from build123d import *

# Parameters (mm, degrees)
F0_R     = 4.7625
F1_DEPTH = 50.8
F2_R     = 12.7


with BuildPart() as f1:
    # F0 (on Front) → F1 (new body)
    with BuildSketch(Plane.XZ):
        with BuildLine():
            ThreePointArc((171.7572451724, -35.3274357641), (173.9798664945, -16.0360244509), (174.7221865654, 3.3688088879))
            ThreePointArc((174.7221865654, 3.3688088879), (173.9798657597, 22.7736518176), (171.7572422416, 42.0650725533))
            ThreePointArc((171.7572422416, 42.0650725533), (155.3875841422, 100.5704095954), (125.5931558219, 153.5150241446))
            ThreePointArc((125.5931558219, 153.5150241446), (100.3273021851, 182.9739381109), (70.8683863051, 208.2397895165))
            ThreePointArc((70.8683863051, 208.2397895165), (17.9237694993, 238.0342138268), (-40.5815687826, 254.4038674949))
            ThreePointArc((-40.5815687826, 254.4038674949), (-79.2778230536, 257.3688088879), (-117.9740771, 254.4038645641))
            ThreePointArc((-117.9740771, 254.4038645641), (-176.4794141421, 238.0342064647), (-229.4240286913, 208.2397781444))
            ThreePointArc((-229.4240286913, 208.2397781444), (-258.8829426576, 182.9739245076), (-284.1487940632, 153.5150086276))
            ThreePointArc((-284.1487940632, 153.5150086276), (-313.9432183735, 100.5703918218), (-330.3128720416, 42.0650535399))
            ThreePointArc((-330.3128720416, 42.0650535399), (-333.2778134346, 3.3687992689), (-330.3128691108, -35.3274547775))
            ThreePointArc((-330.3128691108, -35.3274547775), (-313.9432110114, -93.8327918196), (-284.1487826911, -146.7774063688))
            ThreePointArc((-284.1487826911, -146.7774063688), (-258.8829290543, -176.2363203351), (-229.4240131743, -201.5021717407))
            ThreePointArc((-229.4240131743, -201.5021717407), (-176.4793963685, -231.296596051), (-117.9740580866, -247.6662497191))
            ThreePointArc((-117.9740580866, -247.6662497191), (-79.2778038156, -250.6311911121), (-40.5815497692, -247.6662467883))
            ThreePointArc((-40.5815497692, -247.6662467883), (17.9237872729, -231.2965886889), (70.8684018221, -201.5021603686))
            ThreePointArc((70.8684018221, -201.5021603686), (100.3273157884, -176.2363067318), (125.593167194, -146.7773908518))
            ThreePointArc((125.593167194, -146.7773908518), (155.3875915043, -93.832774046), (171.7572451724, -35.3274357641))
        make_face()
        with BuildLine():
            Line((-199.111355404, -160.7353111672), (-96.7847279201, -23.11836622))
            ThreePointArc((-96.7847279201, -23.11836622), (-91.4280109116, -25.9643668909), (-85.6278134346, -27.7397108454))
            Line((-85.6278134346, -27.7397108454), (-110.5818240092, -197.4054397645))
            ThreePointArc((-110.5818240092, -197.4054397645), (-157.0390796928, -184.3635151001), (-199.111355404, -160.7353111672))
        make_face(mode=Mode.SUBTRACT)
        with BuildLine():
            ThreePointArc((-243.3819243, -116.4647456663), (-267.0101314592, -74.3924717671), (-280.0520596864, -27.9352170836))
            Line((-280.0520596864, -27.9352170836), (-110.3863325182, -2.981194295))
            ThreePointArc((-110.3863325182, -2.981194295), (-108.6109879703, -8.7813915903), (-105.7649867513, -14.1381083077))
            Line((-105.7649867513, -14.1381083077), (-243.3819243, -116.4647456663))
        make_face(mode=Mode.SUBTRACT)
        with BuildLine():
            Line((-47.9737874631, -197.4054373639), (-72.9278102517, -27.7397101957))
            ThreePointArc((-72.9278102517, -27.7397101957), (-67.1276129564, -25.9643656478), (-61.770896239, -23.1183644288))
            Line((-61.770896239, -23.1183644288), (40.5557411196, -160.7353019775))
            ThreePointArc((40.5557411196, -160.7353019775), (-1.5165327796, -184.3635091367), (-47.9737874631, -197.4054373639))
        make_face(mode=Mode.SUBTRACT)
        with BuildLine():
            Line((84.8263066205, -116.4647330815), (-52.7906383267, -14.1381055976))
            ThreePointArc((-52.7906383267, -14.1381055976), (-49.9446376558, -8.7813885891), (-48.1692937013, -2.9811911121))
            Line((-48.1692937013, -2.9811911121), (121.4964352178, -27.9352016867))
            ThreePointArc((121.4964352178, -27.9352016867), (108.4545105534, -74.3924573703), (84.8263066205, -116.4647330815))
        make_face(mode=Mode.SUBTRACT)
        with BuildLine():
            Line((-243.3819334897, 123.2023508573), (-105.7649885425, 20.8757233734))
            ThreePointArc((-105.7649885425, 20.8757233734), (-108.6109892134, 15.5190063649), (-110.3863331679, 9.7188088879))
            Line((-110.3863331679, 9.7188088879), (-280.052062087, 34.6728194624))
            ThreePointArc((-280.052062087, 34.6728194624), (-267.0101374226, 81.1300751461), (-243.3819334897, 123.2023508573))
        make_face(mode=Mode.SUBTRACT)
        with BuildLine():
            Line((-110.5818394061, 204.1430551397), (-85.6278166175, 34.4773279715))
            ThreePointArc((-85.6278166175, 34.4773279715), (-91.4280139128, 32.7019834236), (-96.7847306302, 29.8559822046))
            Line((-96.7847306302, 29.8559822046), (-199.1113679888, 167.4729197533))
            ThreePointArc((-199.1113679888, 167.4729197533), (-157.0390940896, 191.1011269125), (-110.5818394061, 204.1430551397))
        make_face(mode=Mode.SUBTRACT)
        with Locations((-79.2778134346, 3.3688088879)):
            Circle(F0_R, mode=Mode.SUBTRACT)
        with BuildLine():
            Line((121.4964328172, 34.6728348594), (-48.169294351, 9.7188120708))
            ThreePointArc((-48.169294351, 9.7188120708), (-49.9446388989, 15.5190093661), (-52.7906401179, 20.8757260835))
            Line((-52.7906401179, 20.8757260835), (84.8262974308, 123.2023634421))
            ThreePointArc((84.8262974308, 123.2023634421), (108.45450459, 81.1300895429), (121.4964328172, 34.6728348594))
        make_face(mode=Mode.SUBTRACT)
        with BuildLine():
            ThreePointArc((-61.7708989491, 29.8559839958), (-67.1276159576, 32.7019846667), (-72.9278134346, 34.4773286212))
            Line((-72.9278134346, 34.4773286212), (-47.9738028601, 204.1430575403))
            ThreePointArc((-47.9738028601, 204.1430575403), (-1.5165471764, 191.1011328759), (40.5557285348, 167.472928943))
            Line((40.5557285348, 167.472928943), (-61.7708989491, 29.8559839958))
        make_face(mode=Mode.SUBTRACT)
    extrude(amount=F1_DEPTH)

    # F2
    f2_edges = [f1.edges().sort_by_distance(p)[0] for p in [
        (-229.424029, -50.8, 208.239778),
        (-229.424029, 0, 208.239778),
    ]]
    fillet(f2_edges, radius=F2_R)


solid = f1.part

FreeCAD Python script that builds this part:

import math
import FreeCAD as App
import Part
import Sketcher
from FreeCAD import Vector
Q = App.Units.Quantity


def edges_at(feature, points):
    """Names of the edges that pass closest to the given points."""
    edges = feature.Shape.Edges
    near = lambda p: min(range(len(edges)), key=lambda i: edges[i].distToShape(Part.Vertex(*p))[0])
    return sorted({f"Edge{near(p) + 1}" for p in points})

doc = App.newDocument("Part")
body = doc.addObject("PartDesign::Body", "Body")

sketch1 = body.newObject("Sketcher::SketchObject", "Sketch")
sketch1.AttachmentSupport = (doc.getObject("XZ_Plane"), [""])
sketch1.MapMode = "FlatFace"
sketch1.addGeometry([
    Part.ArcOfCircle(Part.Circle(Vector(-79.277813, 3.368809, 0), Vector(0, 0, 1), 254), math.radians(-8.762988), math.radians(0)),
    Part.ArcOfCircle(Part.Circle(Vector(-79.277813, 3.368809, 0), Vector(0, 0, 1), 254), math.radians(0), math.radians(8.762992)),
    Part.ArcOfCircle(Part.Circle(Vector(-79.277813, 3.368809, 0), Vector(0, 0, 1), 254), math.radians(8.762992), math.radians(36.237012)),
    Part.ArcOfCircle(Part.Circle(Vector(-79.277813, 3.368809, 0), Vector(0, 0, 1), 254), math.radians(36.237012), math.radians(53.762992)),
    Part.ArcOfCircle(Part.Circle(Vector(-79.277813, 3.368809, 0), Vector(0, 0, 1), 254), math.radians(53.762992), math.radians(98.762992)),
    Part.ArcOfCircle(Part.Circle(Vector(-79.277813, 3.368809, 0), Vector(0, 0, 1), 254), math.radians(98.762992), math.radians(126.237012)),
    Part.ArcOfCircle(Part.Circle(Vector(-79.277813, 3.368809, 0), Vector(0, 0, 1), 254), math.radians(126.237012), math.radians(143.762992)),
    Part.ArcOfCircle(Part.Circle(Vector(-79.277813, 3.368809, 0), Vector(0, 0, 1), 254), math.radians(143.762992), math.radians(188.762992)),
    Part.ArcOfCircle(Part.Circle(Vector(-79.277813, 3.368809, 0), Vector(0, 0, 1), 254), math.radians(-171.237008), math.radians(-143.762988)),
    Part.ArcOfCircle(Part.Circle(Vector(-79.277813, 3.368809, 0), Vector(0, 0, 1), 254), math.radians(-143.762988), math.radians(-126.237008)),
    Part.ArcOfCircle(Part.Circle(Vector(-79.277813, 3.368809, 0), Vector(0, 0, 1), 254), math.radians(-126.237008), math.radians(-81.237008)),
    Part.ArcOfCircle(Part.Circle(Vector(-79.277813, 3.368809, 0), Vector(0, 0, 1), 254), math.radians(-81.237008), math.radians(-53.762988)),
    Part.ArcOfCircle(Part.Circle(Vector(-79.277813, 3.368809, 0), Vector(0, 0, 1), 254), math.radians(-53.762988), math.radians(-36.237008)),
    Part.ArcOfCircle(Part.Circle(Vector(-79.277813, 3.368809, 0), Vector(0, 0, 1), 254), math.radians(-36.237008), math.radians(-8.762988)),
    Part.ArcOfCircle(Part.Circle(Vector(-79.277813, 3.368809, 0), Vector(0, 0, 1), 203.2), math.radians(-126.137992), math.radians(-98.862003)),
    Part.LineSegment(Vector(-199.111355, -160.735311, 0), Vector(-96.784728, -23.118366, 0)),
    Part.ArcOfCircle(Part.Circle(Vector(-79.277813, 3.368809, 0), Vector(0, 0, 1), 31.75), math.radians(-123.463035), math.radians(-101.536959)),
    Part.LineSegment(Vector(-85.627813, -27.739711, 0), Vector(-110.581824, -197.40544, 0)),
    Part.LineSegment(Vector(-105.764987, -14.138108, 0), Vector(-243.381924, -116.464746, 0)),
    Part.ArcOfCircle(Part.Circle(Vector(-79.277813, 3.368809, 0), Vector(0, 0, 1), 203.2), math.radians(-171.137992), math.radians(-143.862003)),
    Part.LineSegment(Vector(-280.05206, -27.935217, 0), Vector(-110.386333, -2.981194, 0)),
    Part.ArcOfCircle(Part.Circle(Vector(-79.277813, 3.368809, 0), Vector(0, 0, 1), 31.75), math.radians(-168.463035), math.radians(-146.536959)),
    Part.ArcOfCircle(Part.Circle(Vector(-79.277813, 3.368809, 0), Vector(0, 0, 1), 203.2), math.radians(-81.137992), math.radians(-53.862003)),
    Part.LineSegment(Vector(-47.973787, -197.405437, 0), Vector(-72.92781, -27.73971, 0)),
    Part.ArcOfCircle(Part.Circle(Vector(-79.277813, 3.368809, 0), Vector(0, 0, 1), 31.75), math.radians(-78.463035), math.radians(-56.536959)),
    Part.LineSegment(Vector(-61.770896, -23.118364, 0), Vector(40.555741, -160.735302, 0)),
    Part.ArcOfCircle(Part.Circle(Vector(-79.277813, 3.368809, 0), Vector(0, 0, 1), 203.2), math.radians(-36.137992), math.radians(-8.862003)),
    Part.LineSegment(Vector(84.826307, -116.464733, 0), Vector(-52.790638, -14.138106, 0)),
    Part.ArcOfCircle(Part.Circle(Vector(-79.277813, 3.368809, 0), Vector(0, 0, 1), 31.75), math.radians(-33.463035), math.radians(-11.536959)),
    Part.LineSegment(Vector(-48.169294, -2.981191, 0), Vector(121.496435, -27.935202, 0)),
    Part.ArcOfCircle(Part.Circle(Vector(-79.277813, 3.368809, 0), Vector(0, 0, 1), 203.2), math.radians(143.862008), math.radians(171.137997)),
    Part.LineSegment(Vector(-243.381933, 123.202351, 0), Vector(-105.764989, 20.875723, 0)),
    Part.ArcOfCircle(Part.Circle(Vector(-79.277813, 3.368809, 0), Vector(0, 0, 1), 31.75), math.radians(146.536965), math.radians(168.463041)),
    Part.LineSegment(Vector(-110.386333, 9.718809, 0), Vector(-280.052062, 34.672819, 0)),
    Part.Circle(Vector(-79.277813, 3.368809, 0), Vector(0, 0, 1), 4.7625),
    Part.ArcOfCircle(Part.Circle(Vector(-79.277813, 3.368809, 0), Vector(0, 0, 1), 203.2), math.radians(98.862008), math.radians(126.137997)),
    Part.LineSegment(Vector(-110.581839, 204.143055, 0), Vector(-85.627817, 34.477328, 0)),
    Part.ArcOfCircle(Part.Circle(Vector(-79.277813, 3.368809, 0), Vector(0, 0, 1), 31.75), math.radians(101.536965), math.radians(123.463041)),
    Part.LineSegment(Vector(-96.784731, 29.855982, 0), Vector(-199.111368, 167.47292, 0)),
    Part.ArcOfCircle(Part.Circle(Vector(-79.277813, 3.368809, 0), Vector(0, 0, 1), 203.2), math.radians(8.862008), math.radians(36.137997)),
    Part.LineSegment(Vector(121.496433, 34.672835, 0), Vector(-48.169294, 9.718812, 0)),
    Part.ArcOfCircle(Part.Circle(Vector(-79.277813, 3.368809, 0), Vector(0, 0, 1), 31.75), math.radians(11.536965), math.radians(33.463041)),
    Part.LineSegment(Vector(-52.79064, 20.875726, 0), Vector(84.826297, 123.202363, 0)),
    Part.LineSegment(Vector(40.555729, 167.472929, 0), Vector(-61.770899, 29.855984, 0)),
    Part.ArcOfCircle(Part.Circle(Vector(-79.277813, 3.368809, 0), Vector(0, 0, 1), 31.75), math.radians(56.536965), math.radians(78.463041)),
    Part.LineSegment(Vector(-72.927813, 34.477329, 0), Vector(-47.973803, 204.143058, 0)),
    Part.ArcOfCircle(Part.Circle(Vector(-79.277813, 3.368809, 0), Vector(0, 0, 1), 203.2), math.radians(53.862008), math.radians(81.137997)),
], False)
sketch1.addConstraint([
    Sketcher.Constraint("Tangent", 0, 2, 1, 1),
    Sketcher.Constraint("Tangent", 1, 2, 2, 1),
    Sketcher.Constraint("Tangent", 2, 2, 3, 1),
    Sketcher.Constraint("Tangent", 3, 2, 4, 1),
    Sketcher.Constraint("Tangent", 4, 2, 5, 1),
    Sketcher.Constraint("Tangent", 5, 2, 6, 1),
    Sketcher.Constraint("Tangent", 6, 2, 7, 1),
    Sketcher.Constraint("Tangent", 7, 2, 8, 1),
    Sketcher.Constraint("Tangent", 8, 2, 9, 1),
    Sketcher.Constraint("Tangent", 9, 2, 10, 1),
    Sketcher.Constraint("Tangent", 10, 2, 11, 1),
    Sketcher.Constraint("Tangent", 11, 2, 12, 1),
    Sketcher.Constraint("Tangent", 12, 2, 13, 1),
    Sketcher.Constraint("Coincident", 13, 2, 0, 1),
    Sketcher.Constraint("Coincident", 14, 1, 15, 1),
    Sketcher.Constraint("Coincident", 15, 2, 16, 1),
    Sketcher.Constraint("Coincident", 16, 2, 17, 1),
    Sketcher.Constraint("Coincident", 17, 2, 14, 2),
    Sketcher.Constraint("Coincident", 18, 2, 19, 2),
    Sketcher.Constraint("Coincident", 19, 1, 20, 1),
    Sketcher.Constraint("Coincident", 20, 2, 21, 1),
    Sketcher.Constraint("Coincident", 21, 2, 18, 1),
    Sketcher.Constraint("Coincident", 22, 1, 23, 1),
    Sketcher.Constraint("Coincident", 23, 2, 24, 1),
    Sketcher.Constraint("Coincident", 24, 2, 25, 1),
    Sketcher.Constraint("Coincident", 25, 2, 22, 2),
    Sketcher.Constraint("Coincident", 26, 1, 27, 1),
    Sketcher.Constraint("Coincident", 27, 2, 28, 1),
    Sketcher.Constraint("Coincident", 28, 2, 29, 1),
    Sketcher.Constraint("Coincident", 29, 2, 26, 2),
    Sketcher.Constraint("Coincident", 30, 1, 31, 1),
    Sketcher.Constraint("Coincident", 31, 2, 32, 1),
    Sketcher.Constraint("Coincident", 32, 2, 33, 1),
    Sketcher.Constraint("Coincident", 33, 2, 30, 2),
    Sketcher.Constraint("Coincident", 35, 1, 36, 1),
    Sketcher.Constraint("Coincident", 36, 2, 37, 1),
    Sketcher.Constraint("Coincident", 37, 2, 38, 1),
    Sketcher.Constraint("Coincident", 38, 2, 35, 2),
    Sketcher.Constraint("Coincident", 39, 1, 40, 1),
    Sketcher.Constraint("Coincident", 40, 2, 41, 1),
    Sketcher.Constraint("Coincident", 41, 2, 42, 1),
    Sketcher.Constraint("Coincident", 42, 2, 39, 2),
    Sketcher.Constraint("Coincident", 43, 2, 44, 1),
    Sketcher.Constraint("Coincident", 44, 2, 45, 1),
    Sketcher.Constraint("Coincident", 45, 2, 46, 2),
    Sketcher.Constraint("Coincident", 46, 1, 43, 1),
    Sketcher.Constraint("Coincident", 2, 3, 0, 3),
    Sketcher.Constraint("Coincident", 4, 3, 0, 3),
    Sketcher.Constraint("Coincident", 6, 3, 0, 3),
    Sketcher.Constraint("Coincident", 8, 3, 0, 3),
    Sketcher.Constraint("Coincident", 10, 3, 0, 3),
    Sketcher.Constraint("Coincident", 12, 3, 0, 3),
    Sketcher.Constraint("Coincident", 14, 3, 0, 3),
    Sketcher.Constraint("Coincident", 16, 3, 0, 3),
    Sketcher.Constraint("Coincident", 19, 3, 0, 3),
    Sketcher.Constraint("Coincident", 21, 3, 0, 3),
    Sketcher.Constraint("Coincident", 22, 3, 0, 3),
    Sketcher.Constraint("Coincident", 24, 3, 0, 3),
    Sketcher.Constraint("Coincident", 26, 3, 0, 3),
    Sketcher.Constraint("Coincident", 28, 3, 0, 3),
    Sketcher.Constraint("Coincident", 30, 3, 0, 3),
    Sketcher.Constraint("Coincident", 32, 3, 0, 3),
    Sketcher.Constraint("Coincident", 34, 3, 0, 3),
    Sketcher.Constraint("Coincident", 35, 3, 0, 3),
    Sketcher.Constraint("Coincident", 37, 3, 0, 3),
    Sketcher.Constraint("Coincident", 39, 3, 0, 3),
    Sketcher.Constraint("Coincident", 41, 3, 0, 3),
    Sketcher.Constraint("Coincident", 44, 3, 0, 3),
    Sketcher.Constraint("Coincident", 46, 3, 0, 3),
    Sketcher.Constraint("Equal", 14, 19),
    Sketcher.Constraint("Equal", 16, 21),
    Sketcher.Constraint("Equal", 19, 22),
    Sketcher.Constraint("Equal", 21, 24),
    Sketcher.Constraint("Equal", 22, 26),
    Sketcher.Constraint("Equal", 24, 28),
    Sketcher.Constraint("Equal", 26, 30),
    Sketcher.Constraint("Equal", 28, 32),
    Sketcher.Constraint("Equal", 30, 35),
    Sketcher.Constraint("Equal", 32, 37),
    Sketcher.Constraint("Equal", 35, 39),
    Sketcher.Constraint("Equal", 37, 41),
    Sketcher.Constraint("Equal", 41, 44),
    Sketcher.Constraint("Equal", 39, 46),
    Sketcher.Constraint("Perpendicular", 20, 23),
    Sketcher.Constraint("Perpendicular", 18, 25),
    Sketcher.Constraint("Perpendicular", 15, 27),
    Sketcher.Constraint("Perpendicular", 17, 29),
    Sketcher.Constraint("Parallel", 27, 31),
    Sketcher.Constraint("Parallel", 29, 33),
    Sketcher.Constraint("Parallel", 23, 36),
    Sketcher.Constraint("Parallel", 25, 38),
    Sketcher.Constraint("Perpendicular", 36, 40),
    Sketcher.Constraint("Perpendicular", 38, 42),
    Sketcher.Constraint("Perpendicular", 31, 43),
    Sketcher.Constraint("Perpendicular", 33, 45),
    Sketcher.Constraint("Horizontal", 46, 3, 0, 2),
    Sketcher.Constraint("Horizontal", 16, 2, 23, 2),
    Sketcher.Constraint("Horizontal", 15, 2, 24, 2),
    Sketcher.Constraint("Horizontal", 37, 2, 43, 2),
    Sketcher.Constraint("Horizontal", 36, 2, 44, 2),
    Sketcher.Constraint("Vertical", 21, 2, 31, 2),
    Sketcher.Constraint("Vertical", 20, 2, 32, 2),
    Sketcher.Constraint("Vertical", 28, 2, 40, 2),
    Sketcher.Constraint("Vertical", 27, 2, 41, 2),
    Sketcher.Constraint("Equal", 15, 17),
    Sketcher.Constraint("Equal", 17, 18),
    Sketcher.Constraint("Equal", 18, 20),
    Sketcher.Constraint("Equal", 20, 23),
    Sketcher.Constraint("Equal", 23, 25),
    Sketcher.Constraint("Equal", 25, 27),
    Sketcher.Constraint("Equal", 27, 29),
    Sketcher.Constraint("Equal", 33, 36),
    Sketcher.Constraint("Equal", 36, 38),
    Sketcher.Constraint("Radius", 0, Q("10 in")),
    Sketcher.Constraint("Radius", 14, Q("8 in")),
    Sketcher.Constraint("Radius", 16, Q("1.25 in")),
    Sketcher.Constraint("Diameter", 34, Q("0.375 in")),
    Sketcher.Constraint("DistanceY", -1, 1, 4, 2, Q("10.0159002 in")),
    Sketcher.Constraint("DistanceX", -1, 1, 11, 2, 70.868402),
    Sketcher.Constraint("DistanceY", 25, 2, -1, 1, 160.735302),
    Sketcher.Constraint("DistanceY", 29, 2, -1, 1, 27.935202),
    Sketcher.Constraint("DistanceX", 43, 2, -1, 1, 61.770899),
    Sketcher.Constraint("DistanceY", -1, 1, 0, 3, 3.368809),
    Sketcher.Constraint("DistanceY", -1, 1, 3, 2, 208.23979),
    Sketcher.Constraint("DistanceX", 5, 2, -1, 1, 229.424029),
    Sketcher.Constraint("DistanceY", -1, 1, 6, 2, 153.515009),
    Sketcher.Constraint("DistanceX", 7, 2, -1, 1, 330.312869),
    Sketcher.Constraint("DistanceY", 9, 2, -1, 1, 201.502172),
    Sketcher.Constraint("DistanceX", 10, 2, -1, 1, 40.58155),
    Sketcher.Constraint("DistanceY", 12, 2, -1, 1, 146.777391),
    Sketcher.Constraint("DistanceY", 16, 2, -1, 1, 27.739711),
    Sketcher.Constraint("DistanceX", -1, 1, 1, 2, 171.757242),
    Sketcher.Constraint("DistanceX", -1, 1, 2, 2, 125.593156),
    Sketcher.Constraint("DistanceX", 8, 2, -1, 1, 284.148783),
    Sketcher.Constraint("DistanceX", -1, 1, 13, 2, 171.757245),
])
pad1 = body.newObject("PartDesign::Pad", "Pad")
pad1.Profile = sketch1
pad1.Length = Q("2 in")
doc.recompute()

fillet = body.newObject("PartDesign::Fillet", "Fillet")
fillet.Base = (pad1, edges_at(pad1, [(-258.883, -50.8, 182.974), (-258.883, 0, 182.974)]))
fillet.Radius = Q("0.5 in")

doc.recompute()
